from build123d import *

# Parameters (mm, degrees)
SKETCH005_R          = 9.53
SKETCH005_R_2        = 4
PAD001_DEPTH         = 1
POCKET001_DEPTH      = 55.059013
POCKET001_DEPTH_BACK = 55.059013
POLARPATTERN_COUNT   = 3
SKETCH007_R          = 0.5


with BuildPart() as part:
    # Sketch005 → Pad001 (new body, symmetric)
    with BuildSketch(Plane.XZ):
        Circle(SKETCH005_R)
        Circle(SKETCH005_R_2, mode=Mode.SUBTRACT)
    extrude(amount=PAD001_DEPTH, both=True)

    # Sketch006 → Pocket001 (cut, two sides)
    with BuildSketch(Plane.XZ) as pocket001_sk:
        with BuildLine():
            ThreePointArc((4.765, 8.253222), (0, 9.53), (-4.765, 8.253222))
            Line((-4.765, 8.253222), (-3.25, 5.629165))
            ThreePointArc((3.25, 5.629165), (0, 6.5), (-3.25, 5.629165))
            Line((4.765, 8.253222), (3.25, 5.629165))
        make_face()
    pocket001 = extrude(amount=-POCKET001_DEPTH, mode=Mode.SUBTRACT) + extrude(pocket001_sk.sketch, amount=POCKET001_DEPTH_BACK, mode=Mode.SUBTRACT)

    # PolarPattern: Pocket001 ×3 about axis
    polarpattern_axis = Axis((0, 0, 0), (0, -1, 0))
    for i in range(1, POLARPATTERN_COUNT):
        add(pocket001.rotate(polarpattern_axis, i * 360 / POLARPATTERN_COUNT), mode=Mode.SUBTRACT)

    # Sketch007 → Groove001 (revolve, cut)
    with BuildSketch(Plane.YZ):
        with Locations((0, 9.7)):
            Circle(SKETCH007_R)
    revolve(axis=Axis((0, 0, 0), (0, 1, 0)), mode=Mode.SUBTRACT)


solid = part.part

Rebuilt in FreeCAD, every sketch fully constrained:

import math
import FreeCAD as App
import Part
import Sketcher
from FreeCAD import Vector
Q = App.Units.Quantity

doc = App.newDocument("Part")
params = doc.addObject("Spreadsheet::Sheet", "Params")
for row, (alias, value) in enumerate([
    ("sketch1_diameter", "8 mm"),
    ("sketch1_diameter2", "19.06 mm"),
    ("pad1_length", "2 mm"),
    ("sketch2_radius", "6.499999 mm"),
    ("sketch2_radius2", "9.529999 mm"),
    ("sketch3_diameter", "1 mm"),
    ("groove_angle", "360 deg"),
], start=1):
    params.set(f"A{row}", alias)
    params.set(f"B{row}", "=" + value)
    params.setAlias(f"B{row}", alias)

body = doc.addObject("PartDesign::Body", "Body")

sketch1 = body.newObject("Sketcher::SketchObject", "Sketch")
sketch1.AttachmentSupport = (doc.getObject("XZ_Plane"), [""])
sketch1.MapMode = "FlatFace"
sketch1.addGeometry([
    Part.Circle(Vector(0, 0, 0), Vector(0, 0, 1), 9.53),
    Part.Circle(Vector(0, 0, 0), Vector(0, 0, 1), 4),
], False)
sketch1.addConstraint([
    Sketcher.Constraint("Coincident", 0, 3, -1, 1),
    Sketcher.Constraint("Coincident", 1, 3, -1, 1),
    Sketcher.Constraint("Diameter", 1, 8.0),
    Sketcher.Constraint("Diameter", 0, 19.06),
])
sketch1.setExpression("Constraints[2]", "Params.sketch1_diameter")
sketch1.setExpression("Constraints[3]", "Params.sketch1_diameter2")
pad1 = body.newObject("PartDesign::Pad", "Pad")
pad1.Profile = sketch1
pad1.setExpression("Length", "Params.pad1_length")
pad1.Midplane = True

sketch2 = body.newObject("Sketcher::SketchObject", "Sketch001")
sketch2.AttachmentSupport = (doc.getObject("XZ_Plane"), [""])
sketch2.MapMode = "FlatFace"
sketch2.addGeometry([
    Part.ArcOfCircle(Part.Circle(Vector(0, 0.000001, 0), Vector(0, 0, 1), 9.529999), math.radians(59.999998), math.radians(120.000002)),
    Part.LineSegment(Vector(-4.765, 8.253222, 0), Vector(-3.25, 5.629165, 0)),
    Part.ArcOfCircle(Part.Circle(Vector(0, 0.000001, 0), Vector(0, 0, 1), 6.499999), math.radians(59.999996), math.radians(120.000004)),
    Part.LineSegment(Vector(3.25, 5.629165, 0), Vector(4.765, 8.253222, 0)),
], False)
sketch2.addConstraint([
    Sketcher.Constraint("Coincident", 0, 2, 1, 1),
    Sketcher.Constraint("Coincident", 1, 2, 2, 2),
    Sketcher.Constraint("Coincident", 2, 1, 3, 1),
    Sketcher.Constraint("Coincident", 3, 2, 0, 1),
    Sketcher.Constraint("Coincident", 0, 3, -1, 1),
    Sketcher.Constraint("Coincident", 2, 3, -1, 1),
    Sketcher.Constraint("Horizontal", 1, 2, 2, 1),
    Sketcher.Constraint("Horizontal", 0, 2, 3, 2),
    Sketcher.Constraint("Radius", 2, 6.499999),
    Sketcher.Constraint("Angle", 1, Q("-60 deg")),
    Sketcher.Constraint("Radius", 0, 9.529999),
    Sketcher.Constraint("DistanceX", 1, 2, 2, 1, 6.5),
])
sketch2.setExpression("Constraints[8]", "Params.sketch2_radius")
sketch2.setExpression("Constraints[10]", "Params.sketch2_radius2")
pocket1 = body.newObject("PartDesign::Pocket", "Pocket")
pocket1.Profile = sketch2
pocket1.Type = "ThroughAll"
pocket1.Midplane = True
doc.recompute()

polarpattern = body.newObject("PartDesign::PolarPattern", "PolarPattern")
polarpattern.Originals = [pocket1]
polarpattern.Axis = (doc.getObject("Y_Axis"), [""])
polarpattern.Angle = 360
polarpattern.Occurrences = 3
body.Tip = polarpattern

sketch3 = body.newObject("Sketcher::SketchObject", "Sketch002")
sketch3.AttachmentSupport = (doc.getObject("YZ_Plane"), [""])
sketch3.MapMode = "FlatFace"
sketch3.addGeometry(Part.Circle(Vector(0, 9.7, 0), Vector(0, 0, 1), 0.5), False)
sketch3.addConstraint([
    Sketcher.Constraint("PointOnObject", 0, 3, -2),
    Sketcher.Constraint("Diameter", 0, 1.0),
    Sketcher.Constraint("DistanceY", -1, 1, 0, 3, 9.7),
])
sketch3.setExpression("Constraints[1]", "Params.sketch3_diameter")
groove = body.newObject("PartDesign::Groove", "Groove")
groove.Profile = sketch3
groove.ReferenceAxis = (sketch3, ["H_Axis"])
groove.setExpression("Angle", "Params.groove_angle")

doc.recompute()
